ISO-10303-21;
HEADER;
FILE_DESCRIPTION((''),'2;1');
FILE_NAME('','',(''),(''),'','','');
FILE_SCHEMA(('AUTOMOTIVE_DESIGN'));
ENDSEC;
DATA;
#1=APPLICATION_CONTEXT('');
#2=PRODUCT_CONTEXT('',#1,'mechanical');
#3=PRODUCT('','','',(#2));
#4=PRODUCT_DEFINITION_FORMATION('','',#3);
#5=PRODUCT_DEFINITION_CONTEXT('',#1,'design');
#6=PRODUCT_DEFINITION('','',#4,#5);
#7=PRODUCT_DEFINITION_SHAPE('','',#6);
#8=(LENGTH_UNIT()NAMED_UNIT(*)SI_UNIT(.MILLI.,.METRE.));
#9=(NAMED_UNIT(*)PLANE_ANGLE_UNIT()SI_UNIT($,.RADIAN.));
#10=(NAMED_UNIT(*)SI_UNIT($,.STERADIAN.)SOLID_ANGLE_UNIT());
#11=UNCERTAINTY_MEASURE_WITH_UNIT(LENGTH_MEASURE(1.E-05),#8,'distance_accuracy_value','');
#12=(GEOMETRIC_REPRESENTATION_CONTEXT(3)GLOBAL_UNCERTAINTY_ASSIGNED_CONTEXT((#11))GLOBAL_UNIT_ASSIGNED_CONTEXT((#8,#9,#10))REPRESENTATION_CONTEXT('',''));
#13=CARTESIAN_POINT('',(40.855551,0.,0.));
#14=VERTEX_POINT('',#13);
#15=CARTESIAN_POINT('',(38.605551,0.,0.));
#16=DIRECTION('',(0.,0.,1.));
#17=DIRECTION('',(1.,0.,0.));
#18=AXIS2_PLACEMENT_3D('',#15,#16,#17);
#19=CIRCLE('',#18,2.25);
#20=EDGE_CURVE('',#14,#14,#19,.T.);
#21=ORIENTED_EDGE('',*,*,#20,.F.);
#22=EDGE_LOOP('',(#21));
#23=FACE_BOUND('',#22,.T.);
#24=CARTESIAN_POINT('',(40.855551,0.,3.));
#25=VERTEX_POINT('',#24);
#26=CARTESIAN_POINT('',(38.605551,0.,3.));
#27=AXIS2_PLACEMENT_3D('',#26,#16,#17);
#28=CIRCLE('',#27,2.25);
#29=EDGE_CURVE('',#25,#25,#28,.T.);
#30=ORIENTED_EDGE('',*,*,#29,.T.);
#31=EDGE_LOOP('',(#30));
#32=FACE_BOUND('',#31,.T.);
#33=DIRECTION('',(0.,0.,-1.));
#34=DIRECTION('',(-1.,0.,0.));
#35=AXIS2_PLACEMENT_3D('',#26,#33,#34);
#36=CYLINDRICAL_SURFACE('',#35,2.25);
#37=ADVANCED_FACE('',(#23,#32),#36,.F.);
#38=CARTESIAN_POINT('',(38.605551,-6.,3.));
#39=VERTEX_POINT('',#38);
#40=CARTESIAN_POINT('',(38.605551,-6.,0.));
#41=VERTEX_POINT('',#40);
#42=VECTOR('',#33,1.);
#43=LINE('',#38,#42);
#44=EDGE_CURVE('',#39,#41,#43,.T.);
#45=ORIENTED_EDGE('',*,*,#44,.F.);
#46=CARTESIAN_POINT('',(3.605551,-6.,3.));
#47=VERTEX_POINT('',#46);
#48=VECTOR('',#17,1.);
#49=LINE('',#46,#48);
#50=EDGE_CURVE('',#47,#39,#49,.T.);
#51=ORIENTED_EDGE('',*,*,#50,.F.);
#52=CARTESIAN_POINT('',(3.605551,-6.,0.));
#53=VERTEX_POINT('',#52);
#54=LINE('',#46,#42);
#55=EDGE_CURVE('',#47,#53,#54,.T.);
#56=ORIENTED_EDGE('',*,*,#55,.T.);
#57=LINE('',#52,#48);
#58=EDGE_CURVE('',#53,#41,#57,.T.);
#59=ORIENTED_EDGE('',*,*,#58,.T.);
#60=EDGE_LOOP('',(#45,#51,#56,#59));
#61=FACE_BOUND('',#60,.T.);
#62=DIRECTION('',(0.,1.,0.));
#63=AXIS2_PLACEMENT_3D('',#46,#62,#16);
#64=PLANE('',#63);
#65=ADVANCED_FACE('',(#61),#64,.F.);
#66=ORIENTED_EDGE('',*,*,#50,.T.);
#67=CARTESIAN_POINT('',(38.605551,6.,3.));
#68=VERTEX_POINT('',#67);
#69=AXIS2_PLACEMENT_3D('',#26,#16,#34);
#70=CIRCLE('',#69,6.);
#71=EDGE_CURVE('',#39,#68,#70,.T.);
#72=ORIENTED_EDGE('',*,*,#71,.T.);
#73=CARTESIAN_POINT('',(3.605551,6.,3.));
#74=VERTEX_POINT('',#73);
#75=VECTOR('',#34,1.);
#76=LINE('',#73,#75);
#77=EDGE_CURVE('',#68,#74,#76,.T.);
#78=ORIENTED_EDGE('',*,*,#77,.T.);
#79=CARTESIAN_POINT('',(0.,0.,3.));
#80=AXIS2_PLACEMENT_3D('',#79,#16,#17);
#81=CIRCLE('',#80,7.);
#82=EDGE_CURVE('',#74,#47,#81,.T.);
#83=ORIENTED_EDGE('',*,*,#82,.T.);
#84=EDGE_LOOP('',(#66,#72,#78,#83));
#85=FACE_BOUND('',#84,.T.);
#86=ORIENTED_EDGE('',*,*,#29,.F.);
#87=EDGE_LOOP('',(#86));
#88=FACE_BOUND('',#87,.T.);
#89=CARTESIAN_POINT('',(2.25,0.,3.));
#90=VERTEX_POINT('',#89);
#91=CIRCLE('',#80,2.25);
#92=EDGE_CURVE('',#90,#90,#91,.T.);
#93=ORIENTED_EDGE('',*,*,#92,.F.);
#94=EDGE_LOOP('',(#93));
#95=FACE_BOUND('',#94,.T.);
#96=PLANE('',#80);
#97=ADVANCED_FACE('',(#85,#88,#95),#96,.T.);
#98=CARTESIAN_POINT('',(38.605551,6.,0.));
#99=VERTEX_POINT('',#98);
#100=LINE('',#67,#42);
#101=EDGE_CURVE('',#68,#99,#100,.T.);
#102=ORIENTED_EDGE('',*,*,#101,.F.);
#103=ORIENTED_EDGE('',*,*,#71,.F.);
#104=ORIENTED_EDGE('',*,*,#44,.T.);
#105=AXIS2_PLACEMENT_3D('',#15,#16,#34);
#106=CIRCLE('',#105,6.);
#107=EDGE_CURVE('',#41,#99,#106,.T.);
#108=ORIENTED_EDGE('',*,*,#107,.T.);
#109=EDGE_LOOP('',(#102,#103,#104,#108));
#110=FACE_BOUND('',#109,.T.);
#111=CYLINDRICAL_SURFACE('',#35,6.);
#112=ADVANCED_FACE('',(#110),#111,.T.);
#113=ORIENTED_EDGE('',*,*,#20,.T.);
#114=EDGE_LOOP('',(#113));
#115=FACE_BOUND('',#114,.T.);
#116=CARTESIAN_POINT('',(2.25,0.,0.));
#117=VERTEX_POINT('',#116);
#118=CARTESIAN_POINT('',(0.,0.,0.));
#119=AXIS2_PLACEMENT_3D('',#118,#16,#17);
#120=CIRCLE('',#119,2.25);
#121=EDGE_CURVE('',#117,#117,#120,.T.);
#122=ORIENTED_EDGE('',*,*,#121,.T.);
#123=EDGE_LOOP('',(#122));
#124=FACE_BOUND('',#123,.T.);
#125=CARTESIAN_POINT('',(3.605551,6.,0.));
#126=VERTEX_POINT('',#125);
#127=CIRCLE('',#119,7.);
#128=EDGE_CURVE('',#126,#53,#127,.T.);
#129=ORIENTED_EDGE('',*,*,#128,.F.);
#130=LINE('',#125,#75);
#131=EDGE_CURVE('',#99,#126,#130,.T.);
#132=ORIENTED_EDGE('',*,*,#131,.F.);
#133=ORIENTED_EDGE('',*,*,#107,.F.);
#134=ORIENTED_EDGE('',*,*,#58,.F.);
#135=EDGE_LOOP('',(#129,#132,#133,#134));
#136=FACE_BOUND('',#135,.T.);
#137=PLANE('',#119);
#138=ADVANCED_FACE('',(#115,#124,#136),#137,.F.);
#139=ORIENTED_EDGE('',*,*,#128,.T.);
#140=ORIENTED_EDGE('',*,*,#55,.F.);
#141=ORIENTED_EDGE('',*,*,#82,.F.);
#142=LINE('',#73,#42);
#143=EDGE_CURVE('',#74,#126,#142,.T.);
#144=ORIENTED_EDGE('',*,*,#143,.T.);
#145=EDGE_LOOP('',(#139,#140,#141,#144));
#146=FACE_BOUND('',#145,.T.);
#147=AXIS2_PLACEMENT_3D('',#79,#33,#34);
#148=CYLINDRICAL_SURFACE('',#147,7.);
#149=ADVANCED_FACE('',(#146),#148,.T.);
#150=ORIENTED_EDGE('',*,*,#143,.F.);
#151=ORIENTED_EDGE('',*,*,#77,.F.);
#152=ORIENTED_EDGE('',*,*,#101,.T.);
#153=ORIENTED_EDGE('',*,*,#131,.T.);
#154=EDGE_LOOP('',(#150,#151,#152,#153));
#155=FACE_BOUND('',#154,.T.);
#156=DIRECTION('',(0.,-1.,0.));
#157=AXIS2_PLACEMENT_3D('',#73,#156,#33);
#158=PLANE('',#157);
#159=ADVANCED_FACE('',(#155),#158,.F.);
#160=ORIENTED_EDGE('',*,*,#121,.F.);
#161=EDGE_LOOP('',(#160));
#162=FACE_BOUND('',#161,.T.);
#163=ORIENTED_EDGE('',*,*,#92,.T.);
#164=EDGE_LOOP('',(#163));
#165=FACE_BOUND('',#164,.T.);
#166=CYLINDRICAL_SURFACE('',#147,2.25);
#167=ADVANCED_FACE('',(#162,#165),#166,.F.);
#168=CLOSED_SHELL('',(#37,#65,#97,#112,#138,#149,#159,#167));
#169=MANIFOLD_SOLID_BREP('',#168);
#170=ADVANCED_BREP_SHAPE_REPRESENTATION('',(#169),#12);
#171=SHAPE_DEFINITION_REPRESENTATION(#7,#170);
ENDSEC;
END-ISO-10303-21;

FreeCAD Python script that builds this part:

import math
import FreeCAD as App
import Part
import Sketcher

doc = App.newDocument("Part")
body = doc.addObject("PartDesign::Body", "Body")

sketch1 = doc.addObject("Sketcher::SketchObject", "Sketch")
body.addObject(sketch1)
sketch1.AttachmentSupport = (doc.XY_Plane, [""])
sketch1.MapMode = "FlatFace"
sketch1.addGeometry([
    Part.LineSegment(App.Vector(38.605551, 6, 0), App.Vector(3.605551, 6, 0)),
    Part.ArcOfCircle(Part.Circle(App.Vector(0, 0, 0), App.Vector(0, 0, 1), 7), math.radians(58.997281), math.radians(301.002719)),
    Part.LineSegment(App.Vector(3.605551, -6, 0), App.Vector(38.605551, -6, 0)),
    Part.ArcOfCircle(Part.Circle(App.Vector(38.605551, 0, 0), App.Vector(0, 0, 1), 6), math.radians(-90), math.radians(90)),
    Part.Circle(App.Vector(38.605551, 0, 0), App.Vector(0, 0, 1), 2.25),
    Part.Circle(App.Vector(0, 0, 0), App.Vector(0, 0, 1), 2.25),
], False)
sketch1.addConstraint([
    Sketcher.Constraint("Coincident", 0, 2, 1, 1),
    Sketcher.Constraint("Coincident", 1, 2, 2, 1),
    Sketcher.Constraint("Tangent", 2, 2, 3, 1),
    Sketcher.Constraint("Tangent", 3, 2, 0, 1),
    Sketcher.Constraint("Horizontal", 0),
    Sketcher.Constraint("Horizontal", 2),
    Sketcher.Constraint("Coincident", 1, 3, -1, 1),
    Sketcher.Constraint("Coincident", 5, 3, -1, 1),
    Sketcher.Constraint("Coincident", 4, 3, 3, 3),
    Sketcher.Constraint("Equal", 4, 5),
    Sketcher.Constraint("PointOnObject", 3, 3, -1),
    Sketcher.Constraint("Radius", 1, 7.0),
    Sketcher.Constraint("Radius", 3, 6.0),
    Sketcher.Constraint("Diameter", 4, 4.5),
    Sketcher.Constraint("DistanceX", 0, 2, 0, 1, 35.0),
])
pad1 = doc.addObject("PartDesign::Pad", "Pad")
body.addObject(pad1)
pad1.Profile = sketch1
pad1.Length = 3

doc.recompute()
